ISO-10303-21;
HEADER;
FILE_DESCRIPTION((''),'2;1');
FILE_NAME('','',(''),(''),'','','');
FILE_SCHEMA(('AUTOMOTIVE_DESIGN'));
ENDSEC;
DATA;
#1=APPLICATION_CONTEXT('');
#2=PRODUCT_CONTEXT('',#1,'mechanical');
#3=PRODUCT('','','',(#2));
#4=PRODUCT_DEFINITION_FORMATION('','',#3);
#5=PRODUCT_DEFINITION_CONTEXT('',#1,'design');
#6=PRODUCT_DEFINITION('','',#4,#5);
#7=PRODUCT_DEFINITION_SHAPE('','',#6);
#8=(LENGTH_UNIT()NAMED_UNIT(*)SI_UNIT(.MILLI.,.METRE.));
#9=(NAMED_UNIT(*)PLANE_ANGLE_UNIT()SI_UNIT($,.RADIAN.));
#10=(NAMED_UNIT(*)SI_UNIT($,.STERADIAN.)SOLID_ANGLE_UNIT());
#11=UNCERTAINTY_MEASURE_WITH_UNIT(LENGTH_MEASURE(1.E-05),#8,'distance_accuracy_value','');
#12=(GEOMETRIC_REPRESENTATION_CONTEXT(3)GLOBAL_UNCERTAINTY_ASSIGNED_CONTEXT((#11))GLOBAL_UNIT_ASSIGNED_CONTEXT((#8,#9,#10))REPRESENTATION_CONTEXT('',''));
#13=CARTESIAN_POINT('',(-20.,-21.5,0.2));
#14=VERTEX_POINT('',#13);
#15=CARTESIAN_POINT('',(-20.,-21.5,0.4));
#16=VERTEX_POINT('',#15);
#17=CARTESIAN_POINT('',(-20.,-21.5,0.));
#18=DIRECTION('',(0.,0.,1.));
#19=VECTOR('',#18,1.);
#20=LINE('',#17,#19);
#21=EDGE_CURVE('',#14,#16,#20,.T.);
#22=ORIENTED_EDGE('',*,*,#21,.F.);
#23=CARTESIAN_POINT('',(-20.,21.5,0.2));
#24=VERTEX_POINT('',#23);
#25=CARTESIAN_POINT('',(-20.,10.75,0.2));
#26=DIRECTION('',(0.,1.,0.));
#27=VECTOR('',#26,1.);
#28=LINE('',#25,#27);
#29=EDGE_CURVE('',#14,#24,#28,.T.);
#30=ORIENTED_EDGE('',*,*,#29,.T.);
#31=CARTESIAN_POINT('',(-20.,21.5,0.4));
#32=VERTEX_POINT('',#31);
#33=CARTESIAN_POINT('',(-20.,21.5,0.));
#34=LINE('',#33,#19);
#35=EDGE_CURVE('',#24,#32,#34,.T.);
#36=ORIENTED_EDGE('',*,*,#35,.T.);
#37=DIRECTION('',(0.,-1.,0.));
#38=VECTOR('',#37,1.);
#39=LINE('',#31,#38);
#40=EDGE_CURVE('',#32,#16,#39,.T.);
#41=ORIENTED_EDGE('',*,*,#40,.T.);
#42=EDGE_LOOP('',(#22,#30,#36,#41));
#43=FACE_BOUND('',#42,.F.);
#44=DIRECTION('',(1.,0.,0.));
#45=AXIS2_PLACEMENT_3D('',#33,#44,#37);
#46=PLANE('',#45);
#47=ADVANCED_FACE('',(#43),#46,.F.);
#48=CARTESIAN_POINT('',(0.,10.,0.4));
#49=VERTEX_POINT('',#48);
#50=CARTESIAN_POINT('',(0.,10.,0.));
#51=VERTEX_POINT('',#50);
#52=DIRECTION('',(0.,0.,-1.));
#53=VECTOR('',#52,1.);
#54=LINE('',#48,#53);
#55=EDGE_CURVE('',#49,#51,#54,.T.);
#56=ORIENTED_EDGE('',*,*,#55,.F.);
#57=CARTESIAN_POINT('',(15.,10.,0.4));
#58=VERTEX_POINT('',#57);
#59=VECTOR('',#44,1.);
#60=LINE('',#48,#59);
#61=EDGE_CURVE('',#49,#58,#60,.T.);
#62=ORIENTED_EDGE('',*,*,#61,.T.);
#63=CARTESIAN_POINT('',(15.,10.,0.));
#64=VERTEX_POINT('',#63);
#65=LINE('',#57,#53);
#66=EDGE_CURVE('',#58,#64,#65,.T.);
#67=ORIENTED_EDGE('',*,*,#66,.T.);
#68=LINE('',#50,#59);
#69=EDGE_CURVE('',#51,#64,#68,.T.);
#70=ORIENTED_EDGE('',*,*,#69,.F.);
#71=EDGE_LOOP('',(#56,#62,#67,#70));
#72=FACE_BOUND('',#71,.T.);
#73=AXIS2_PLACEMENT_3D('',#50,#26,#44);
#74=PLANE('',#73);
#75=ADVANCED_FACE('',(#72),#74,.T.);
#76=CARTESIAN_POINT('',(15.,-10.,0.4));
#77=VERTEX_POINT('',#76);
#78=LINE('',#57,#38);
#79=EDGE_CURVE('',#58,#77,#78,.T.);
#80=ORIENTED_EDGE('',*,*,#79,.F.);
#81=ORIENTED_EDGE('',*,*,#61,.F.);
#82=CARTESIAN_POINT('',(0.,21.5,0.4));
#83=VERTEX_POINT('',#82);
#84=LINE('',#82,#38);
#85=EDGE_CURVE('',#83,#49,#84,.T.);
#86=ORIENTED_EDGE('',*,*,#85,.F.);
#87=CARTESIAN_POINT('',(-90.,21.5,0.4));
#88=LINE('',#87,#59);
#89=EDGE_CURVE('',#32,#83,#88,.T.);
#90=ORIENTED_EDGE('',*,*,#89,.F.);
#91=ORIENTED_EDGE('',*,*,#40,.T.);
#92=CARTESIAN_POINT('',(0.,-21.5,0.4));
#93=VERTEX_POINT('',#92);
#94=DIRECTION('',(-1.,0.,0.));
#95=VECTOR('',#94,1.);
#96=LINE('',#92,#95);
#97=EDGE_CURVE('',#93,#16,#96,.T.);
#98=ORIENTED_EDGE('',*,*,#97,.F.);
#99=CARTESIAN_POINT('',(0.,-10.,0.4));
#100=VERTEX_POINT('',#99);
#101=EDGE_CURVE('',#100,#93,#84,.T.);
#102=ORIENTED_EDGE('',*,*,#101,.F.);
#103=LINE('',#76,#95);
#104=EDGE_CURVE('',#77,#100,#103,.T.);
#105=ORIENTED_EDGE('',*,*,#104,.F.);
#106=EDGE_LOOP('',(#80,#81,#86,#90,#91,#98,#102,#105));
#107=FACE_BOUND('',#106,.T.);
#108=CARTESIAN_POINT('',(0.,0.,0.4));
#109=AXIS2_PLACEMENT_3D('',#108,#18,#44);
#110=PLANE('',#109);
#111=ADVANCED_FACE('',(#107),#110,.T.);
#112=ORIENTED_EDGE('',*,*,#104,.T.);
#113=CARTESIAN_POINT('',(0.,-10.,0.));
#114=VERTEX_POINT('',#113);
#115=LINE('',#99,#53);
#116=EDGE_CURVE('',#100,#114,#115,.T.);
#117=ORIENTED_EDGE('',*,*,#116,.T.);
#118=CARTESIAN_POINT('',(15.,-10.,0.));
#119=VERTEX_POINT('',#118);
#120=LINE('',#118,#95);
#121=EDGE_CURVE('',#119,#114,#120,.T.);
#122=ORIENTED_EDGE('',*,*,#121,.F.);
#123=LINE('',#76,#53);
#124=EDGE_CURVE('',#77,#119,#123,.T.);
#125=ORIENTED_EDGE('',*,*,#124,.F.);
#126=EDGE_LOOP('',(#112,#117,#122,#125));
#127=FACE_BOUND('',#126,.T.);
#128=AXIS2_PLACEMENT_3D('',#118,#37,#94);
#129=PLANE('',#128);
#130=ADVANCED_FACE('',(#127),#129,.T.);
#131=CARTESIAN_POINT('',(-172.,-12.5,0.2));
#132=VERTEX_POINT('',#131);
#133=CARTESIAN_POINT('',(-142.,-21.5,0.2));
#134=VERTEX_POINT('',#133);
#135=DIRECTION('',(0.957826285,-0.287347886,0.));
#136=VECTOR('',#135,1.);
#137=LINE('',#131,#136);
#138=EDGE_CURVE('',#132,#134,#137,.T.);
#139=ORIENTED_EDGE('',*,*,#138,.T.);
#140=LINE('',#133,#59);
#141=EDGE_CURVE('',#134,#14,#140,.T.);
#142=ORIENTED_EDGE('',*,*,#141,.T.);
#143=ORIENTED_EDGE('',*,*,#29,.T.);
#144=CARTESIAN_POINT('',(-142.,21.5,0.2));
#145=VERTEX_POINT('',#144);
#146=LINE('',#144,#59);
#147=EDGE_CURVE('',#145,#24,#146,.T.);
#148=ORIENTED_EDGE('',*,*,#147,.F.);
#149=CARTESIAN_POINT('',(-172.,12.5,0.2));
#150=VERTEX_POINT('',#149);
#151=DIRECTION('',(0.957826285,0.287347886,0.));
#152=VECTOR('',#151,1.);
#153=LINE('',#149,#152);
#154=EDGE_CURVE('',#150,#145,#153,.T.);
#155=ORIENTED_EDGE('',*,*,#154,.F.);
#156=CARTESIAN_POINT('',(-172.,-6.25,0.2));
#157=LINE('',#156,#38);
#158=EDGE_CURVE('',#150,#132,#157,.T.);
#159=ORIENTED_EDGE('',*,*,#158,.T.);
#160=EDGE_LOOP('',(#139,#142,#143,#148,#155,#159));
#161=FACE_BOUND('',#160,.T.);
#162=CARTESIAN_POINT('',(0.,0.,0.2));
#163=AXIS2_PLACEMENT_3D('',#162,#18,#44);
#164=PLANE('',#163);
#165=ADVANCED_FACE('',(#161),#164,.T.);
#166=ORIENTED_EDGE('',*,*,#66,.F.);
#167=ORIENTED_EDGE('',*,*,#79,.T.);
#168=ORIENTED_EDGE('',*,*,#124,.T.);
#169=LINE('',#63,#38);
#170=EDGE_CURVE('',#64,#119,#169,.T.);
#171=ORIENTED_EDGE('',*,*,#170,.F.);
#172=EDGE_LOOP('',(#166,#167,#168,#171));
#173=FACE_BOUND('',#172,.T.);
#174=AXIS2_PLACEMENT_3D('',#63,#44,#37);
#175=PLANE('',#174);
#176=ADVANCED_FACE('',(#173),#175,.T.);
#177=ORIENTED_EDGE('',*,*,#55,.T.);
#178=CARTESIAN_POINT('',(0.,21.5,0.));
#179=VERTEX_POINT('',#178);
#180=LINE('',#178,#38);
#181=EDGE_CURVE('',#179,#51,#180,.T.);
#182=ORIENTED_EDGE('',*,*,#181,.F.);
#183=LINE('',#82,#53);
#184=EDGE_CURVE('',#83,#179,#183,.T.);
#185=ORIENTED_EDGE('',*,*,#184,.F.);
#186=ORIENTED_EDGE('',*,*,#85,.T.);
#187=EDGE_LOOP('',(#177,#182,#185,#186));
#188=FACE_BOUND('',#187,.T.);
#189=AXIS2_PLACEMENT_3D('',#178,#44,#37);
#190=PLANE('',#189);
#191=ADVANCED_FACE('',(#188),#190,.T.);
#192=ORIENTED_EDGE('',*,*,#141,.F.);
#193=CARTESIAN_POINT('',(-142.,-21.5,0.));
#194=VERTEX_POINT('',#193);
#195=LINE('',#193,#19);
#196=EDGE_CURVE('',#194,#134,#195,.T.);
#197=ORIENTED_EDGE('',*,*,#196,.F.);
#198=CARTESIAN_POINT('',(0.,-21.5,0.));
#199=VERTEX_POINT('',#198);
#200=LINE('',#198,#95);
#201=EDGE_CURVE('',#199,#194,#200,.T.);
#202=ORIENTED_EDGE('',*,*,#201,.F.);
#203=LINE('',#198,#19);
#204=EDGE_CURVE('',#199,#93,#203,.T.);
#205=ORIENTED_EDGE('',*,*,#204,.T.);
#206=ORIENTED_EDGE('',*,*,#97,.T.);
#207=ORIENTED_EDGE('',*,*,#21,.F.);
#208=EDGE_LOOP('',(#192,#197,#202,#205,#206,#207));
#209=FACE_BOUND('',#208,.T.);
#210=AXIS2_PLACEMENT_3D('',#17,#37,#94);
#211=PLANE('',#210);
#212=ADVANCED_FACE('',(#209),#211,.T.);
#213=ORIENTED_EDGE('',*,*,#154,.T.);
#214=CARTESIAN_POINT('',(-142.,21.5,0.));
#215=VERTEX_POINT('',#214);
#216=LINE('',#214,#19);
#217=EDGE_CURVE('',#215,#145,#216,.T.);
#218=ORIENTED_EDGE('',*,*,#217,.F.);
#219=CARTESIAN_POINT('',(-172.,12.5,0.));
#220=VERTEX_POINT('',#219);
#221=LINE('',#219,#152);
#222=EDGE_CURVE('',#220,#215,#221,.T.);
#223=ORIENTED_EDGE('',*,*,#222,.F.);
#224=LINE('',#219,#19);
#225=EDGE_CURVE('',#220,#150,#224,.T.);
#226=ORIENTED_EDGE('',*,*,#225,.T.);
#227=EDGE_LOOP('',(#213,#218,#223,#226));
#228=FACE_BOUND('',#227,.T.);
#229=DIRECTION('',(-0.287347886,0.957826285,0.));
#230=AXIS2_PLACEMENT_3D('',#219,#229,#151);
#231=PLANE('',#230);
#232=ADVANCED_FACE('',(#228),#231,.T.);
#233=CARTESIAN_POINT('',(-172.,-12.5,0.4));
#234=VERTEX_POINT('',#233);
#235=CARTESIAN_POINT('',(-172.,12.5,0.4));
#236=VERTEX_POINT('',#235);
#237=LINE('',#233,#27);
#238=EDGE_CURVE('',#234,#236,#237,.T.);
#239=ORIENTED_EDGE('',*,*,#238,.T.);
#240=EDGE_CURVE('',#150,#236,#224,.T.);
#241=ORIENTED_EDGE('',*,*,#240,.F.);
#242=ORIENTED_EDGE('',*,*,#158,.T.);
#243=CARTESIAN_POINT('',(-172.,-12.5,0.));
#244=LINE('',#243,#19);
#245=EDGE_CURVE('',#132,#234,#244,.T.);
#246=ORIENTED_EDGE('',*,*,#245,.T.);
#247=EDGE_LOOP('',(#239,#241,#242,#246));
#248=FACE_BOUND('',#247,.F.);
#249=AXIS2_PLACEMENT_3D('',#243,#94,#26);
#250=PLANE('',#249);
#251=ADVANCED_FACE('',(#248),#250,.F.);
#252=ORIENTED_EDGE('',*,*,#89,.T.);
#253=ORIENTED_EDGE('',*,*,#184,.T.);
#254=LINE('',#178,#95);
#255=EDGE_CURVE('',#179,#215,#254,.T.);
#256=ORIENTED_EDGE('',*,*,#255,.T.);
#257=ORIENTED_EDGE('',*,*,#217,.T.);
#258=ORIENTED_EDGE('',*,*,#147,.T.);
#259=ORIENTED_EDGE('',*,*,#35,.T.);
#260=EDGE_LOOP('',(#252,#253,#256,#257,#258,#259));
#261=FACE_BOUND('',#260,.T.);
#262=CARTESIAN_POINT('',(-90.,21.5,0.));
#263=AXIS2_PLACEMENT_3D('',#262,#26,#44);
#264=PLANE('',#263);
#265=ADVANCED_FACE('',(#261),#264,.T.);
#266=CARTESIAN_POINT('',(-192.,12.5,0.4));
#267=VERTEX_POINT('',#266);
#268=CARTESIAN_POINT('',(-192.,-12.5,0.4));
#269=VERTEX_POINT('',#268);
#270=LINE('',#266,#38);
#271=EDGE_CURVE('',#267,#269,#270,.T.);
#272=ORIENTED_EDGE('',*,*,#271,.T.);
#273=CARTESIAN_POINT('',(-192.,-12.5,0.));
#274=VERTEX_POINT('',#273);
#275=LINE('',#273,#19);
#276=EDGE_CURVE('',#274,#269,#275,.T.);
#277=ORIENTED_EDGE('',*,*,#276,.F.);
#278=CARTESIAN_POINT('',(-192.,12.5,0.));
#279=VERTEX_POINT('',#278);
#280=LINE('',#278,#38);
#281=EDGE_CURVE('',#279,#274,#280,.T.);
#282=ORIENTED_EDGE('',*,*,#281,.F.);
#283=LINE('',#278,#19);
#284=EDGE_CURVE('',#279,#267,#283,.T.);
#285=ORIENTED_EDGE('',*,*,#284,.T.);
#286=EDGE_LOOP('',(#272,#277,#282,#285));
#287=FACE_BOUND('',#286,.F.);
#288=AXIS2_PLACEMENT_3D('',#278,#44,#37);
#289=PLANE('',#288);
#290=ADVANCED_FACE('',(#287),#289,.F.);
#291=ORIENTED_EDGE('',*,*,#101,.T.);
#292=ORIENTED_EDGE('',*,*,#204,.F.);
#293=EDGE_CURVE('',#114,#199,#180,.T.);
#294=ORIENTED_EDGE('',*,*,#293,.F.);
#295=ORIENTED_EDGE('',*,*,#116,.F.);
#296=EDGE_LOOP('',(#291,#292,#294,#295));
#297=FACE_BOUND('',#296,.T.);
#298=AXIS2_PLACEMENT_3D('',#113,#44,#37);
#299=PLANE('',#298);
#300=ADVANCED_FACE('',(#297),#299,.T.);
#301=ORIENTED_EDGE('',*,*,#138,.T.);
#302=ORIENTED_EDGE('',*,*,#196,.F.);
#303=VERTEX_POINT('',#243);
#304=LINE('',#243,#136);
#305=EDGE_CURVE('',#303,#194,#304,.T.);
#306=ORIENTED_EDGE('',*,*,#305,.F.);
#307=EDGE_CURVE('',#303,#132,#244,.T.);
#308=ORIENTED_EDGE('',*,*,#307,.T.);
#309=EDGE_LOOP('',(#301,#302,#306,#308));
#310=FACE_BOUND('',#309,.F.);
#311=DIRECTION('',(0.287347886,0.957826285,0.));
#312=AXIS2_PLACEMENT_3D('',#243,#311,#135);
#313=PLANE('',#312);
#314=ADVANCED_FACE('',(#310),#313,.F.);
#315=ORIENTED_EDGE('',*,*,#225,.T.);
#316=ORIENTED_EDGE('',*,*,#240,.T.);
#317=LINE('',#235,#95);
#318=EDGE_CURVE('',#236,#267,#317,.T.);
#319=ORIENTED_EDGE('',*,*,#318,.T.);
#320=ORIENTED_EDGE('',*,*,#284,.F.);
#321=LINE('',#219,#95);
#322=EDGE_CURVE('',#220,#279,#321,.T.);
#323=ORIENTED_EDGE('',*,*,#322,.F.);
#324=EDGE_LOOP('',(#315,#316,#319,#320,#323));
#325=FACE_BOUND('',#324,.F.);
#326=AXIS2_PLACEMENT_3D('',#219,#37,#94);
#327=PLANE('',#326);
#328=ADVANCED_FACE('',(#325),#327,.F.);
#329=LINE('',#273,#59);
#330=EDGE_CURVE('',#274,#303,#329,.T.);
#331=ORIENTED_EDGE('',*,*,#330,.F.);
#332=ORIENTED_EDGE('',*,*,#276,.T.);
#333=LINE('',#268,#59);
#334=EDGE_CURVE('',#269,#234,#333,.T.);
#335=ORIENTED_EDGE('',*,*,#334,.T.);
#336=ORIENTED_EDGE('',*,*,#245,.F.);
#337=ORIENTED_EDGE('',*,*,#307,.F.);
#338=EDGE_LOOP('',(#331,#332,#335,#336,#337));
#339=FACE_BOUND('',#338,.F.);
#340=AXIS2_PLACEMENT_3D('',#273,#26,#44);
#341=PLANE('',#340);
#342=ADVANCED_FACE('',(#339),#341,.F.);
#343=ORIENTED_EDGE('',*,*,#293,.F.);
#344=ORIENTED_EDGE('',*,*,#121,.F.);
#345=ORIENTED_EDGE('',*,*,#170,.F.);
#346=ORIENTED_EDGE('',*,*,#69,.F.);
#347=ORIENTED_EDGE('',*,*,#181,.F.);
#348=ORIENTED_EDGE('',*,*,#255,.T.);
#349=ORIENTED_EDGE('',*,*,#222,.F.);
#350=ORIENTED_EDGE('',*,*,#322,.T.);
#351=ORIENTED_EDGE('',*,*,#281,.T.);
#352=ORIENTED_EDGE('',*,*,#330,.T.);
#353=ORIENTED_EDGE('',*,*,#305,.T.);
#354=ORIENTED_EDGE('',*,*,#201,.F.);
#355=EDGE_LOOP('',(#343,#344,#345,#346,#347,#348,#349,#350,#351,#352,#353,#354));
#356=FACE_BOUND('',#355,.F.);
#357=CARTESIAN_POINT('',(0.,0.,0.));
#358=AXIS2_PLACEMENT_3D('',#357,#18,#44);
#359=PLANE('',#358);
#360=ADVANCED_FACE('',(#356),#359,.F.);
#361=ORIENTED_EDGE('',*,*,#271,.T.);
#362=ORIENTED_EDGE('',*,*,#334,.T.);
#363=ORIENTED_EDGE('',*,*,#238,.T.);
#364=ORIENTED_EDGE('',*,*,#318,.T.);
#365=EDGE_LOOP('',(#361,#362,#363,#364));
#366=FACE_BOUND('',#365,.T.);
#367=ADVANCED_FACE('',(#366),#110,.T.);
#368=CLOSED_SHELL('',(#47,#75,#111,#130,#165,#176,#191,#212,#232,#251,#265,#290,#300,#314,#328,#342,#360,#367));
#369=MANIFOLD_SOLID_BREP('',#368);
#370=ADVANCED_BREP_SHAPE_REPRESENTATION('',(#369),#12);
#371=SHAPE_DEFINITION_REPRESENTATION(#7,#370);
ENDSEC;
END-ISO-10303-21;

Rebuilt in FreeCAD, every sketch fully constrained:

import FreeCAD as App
import Part
import Sketcher
from FreeCAD import Vector


def add_polygon(sketch, points):
    """Adds a closed chain of lines whose ends are joined by coincident constraints."""
    first, n = sketch.GeometryCount, len(points)
    for a, b in zip(points, points[1:] + points[:1]):
        sketch.addGeometry(Part.LineSegment(App.Vector(*a, 0), App.Vector(*b, 0)), False)
    for i in range(n):
        sketch.addConstraint(Sketcher.Constraint("Coincident", first + i, 2, first + (i + 1) % n, 1))

doc = App.newDocument("Part")
body = doc.addObject("PartDesign::Body", "Body")

sketch1 = body.newObject("Sketcher::SketchObject", "Sketch")
sketch1.AttachmentSupport = (doc.getObject("XY_Plane"), [""])
sketch1.MapMode = "FlatFace"
add_polygon(sketch1, [(-142, 22), (-172, 12), (-192, 12), (-192, -12), (-172, -12), (-142, -22), (0, -22), (0, -10), (15, -10), (15, 10), (0, 10), (0, 22)])
sketch1.addConstraint([
    Sketcher.Constraint("Horizontal", 1),
    Sketcher.Constraint("Vertical", 2),
    Sketcher.Constraint("Horizontal", 3),
    Sketcher.Constraint("Horizontal", 5),
    Sketcher.Constraint("Vertical", 6),
    Sketcher.Constraint("Horizontal", 7),
    Sketcher.Constraint("Vertical", 8),
    Sketcher.Constraint("Horizontal", 9),
    Sketcher.Constraint("Vertical", 10),
    Sketcher.Constraint("Horizontal", 11),
    Sketcher.Constraint("Symmetric", 6, 2, 9, 2, -1, 1),
    Sketcher.Constraint("Symmetric", 0, 2, 3, 2, -1),
    Sketcher.Constraint("Symmetric", 5, 2, 10, 2, -1),
    Sketcher.Constraint("Vertical", 4, 2, 11, 2),
    Sketcher.Constraint("Equal", 3, 8),
    Sketcher.Constraint("DistanceX", 1, 2, 1, 1, 20.0),
    Sketcher.Constraint("DistanceX", 7, 1, 7, 2, 15.0),
    Sketcher.Constraint("DistanceY", 2, 2, 2, 1, 25.0),
    Sketcher.Constraint("DistanceX", 3, 2, 4, 2, 30.0),
    Sketcher.Constraint("DistanceY", 5, 2, 10, 2, 43.0),
    Sketcher.Constraint("DistanceX", 5, 1, 5, 2, 142.0),
])
pad1 = body.newObject("PartDesign::Pad", "Pad")
pad1.Profile = sketch1
pad1.Length = 0.2

sketch2 = body.newObject("Sketcher::SketchObject", "Sketch001")
sketch2.AttachmentSupport = (doc.getObject("XY_Plane"), [""])
sketch2.MapMode = "FlatFace"
add_polygon(sketch2, [(0, 22), (-20, 22), (-20, -22), (0, -22), (0, -10), (15, -10), (15, 10), (0, 10)])
sketch2.addConstraint([
    Sketcher.Constraint("Horizontal", 0),
    Sketcher.Constraint("Vertical", 1),
    Sketcher.Constraint("Horizontal", 2),
    Sketcher.Constraint("Vertical", 3),
    Sketcher.Constraint("Horizontal", 4),
    Sketcher.Constraint("Vertical", 5),
    Sketcher.Constraint("Horizontal", 6),
    Sketcher.Constraint("Vertical", 7),
    Sketcher.Constraint("Symmetric", 3, 2, 6, 2, -1, 1),
    Sketcher.Constraint("Symmetric", 2, 2, 7, 2, -1),
    Sketcher.Constraint("Equal", 2, 5),
    Sketcher.Constraint("DistanceX", 0, 2, 0, 1, 20.0),
    Sketcher.Constraint("DistanceX", 4, 1, 4, 2, 15.0),
    Sketcher.Constraint("DistanceY", 1, 2, 1, 1, 43.0),
])
pad2 = body.newObject("PartDesign::Pad", "Pad001")
pad2.Profile = sketch2
pad2.Length = 0.4

sketch3 = body.newObject("Sketcher::SketchObject", "Sketch002")
sketch3.AttachmentSupport = (doc.getObject("XY_Plane"), [""])
sketch3.MapMode = "FlatFace"
add_polygon(sketch3, [(-172, -12), (-172, 12), (-192, 12), (-192, -12)])
sketch3.addConstraint([
    Sketcher.Constraint("Vertical", 0),
    Sketcher.Constraint("Horizontal", 1),
    Sketcher.Constraint("Vertical", 2),
    Sketcher.Constraint("Horizontal", 3),
    Sketcher.Constraint("DistanceX", 1, 2, 1, 1, 20.0),
    Sketcher.Constraint("DistanceY", 0, 1, 0, 2, 25.0),
    Sketcher.Constraint("DistanceX", 0, 2, -1, 1, 172.0),
    Sketcher.Constraint("DistanceY", -1, 1, 0, 2, 12.5),
])
pad3 = body.newObject("PartDesign::Pad", "Pad002")
pad3.Profile = sketch3
pad3.Length = 0.4

doc.recompute()
